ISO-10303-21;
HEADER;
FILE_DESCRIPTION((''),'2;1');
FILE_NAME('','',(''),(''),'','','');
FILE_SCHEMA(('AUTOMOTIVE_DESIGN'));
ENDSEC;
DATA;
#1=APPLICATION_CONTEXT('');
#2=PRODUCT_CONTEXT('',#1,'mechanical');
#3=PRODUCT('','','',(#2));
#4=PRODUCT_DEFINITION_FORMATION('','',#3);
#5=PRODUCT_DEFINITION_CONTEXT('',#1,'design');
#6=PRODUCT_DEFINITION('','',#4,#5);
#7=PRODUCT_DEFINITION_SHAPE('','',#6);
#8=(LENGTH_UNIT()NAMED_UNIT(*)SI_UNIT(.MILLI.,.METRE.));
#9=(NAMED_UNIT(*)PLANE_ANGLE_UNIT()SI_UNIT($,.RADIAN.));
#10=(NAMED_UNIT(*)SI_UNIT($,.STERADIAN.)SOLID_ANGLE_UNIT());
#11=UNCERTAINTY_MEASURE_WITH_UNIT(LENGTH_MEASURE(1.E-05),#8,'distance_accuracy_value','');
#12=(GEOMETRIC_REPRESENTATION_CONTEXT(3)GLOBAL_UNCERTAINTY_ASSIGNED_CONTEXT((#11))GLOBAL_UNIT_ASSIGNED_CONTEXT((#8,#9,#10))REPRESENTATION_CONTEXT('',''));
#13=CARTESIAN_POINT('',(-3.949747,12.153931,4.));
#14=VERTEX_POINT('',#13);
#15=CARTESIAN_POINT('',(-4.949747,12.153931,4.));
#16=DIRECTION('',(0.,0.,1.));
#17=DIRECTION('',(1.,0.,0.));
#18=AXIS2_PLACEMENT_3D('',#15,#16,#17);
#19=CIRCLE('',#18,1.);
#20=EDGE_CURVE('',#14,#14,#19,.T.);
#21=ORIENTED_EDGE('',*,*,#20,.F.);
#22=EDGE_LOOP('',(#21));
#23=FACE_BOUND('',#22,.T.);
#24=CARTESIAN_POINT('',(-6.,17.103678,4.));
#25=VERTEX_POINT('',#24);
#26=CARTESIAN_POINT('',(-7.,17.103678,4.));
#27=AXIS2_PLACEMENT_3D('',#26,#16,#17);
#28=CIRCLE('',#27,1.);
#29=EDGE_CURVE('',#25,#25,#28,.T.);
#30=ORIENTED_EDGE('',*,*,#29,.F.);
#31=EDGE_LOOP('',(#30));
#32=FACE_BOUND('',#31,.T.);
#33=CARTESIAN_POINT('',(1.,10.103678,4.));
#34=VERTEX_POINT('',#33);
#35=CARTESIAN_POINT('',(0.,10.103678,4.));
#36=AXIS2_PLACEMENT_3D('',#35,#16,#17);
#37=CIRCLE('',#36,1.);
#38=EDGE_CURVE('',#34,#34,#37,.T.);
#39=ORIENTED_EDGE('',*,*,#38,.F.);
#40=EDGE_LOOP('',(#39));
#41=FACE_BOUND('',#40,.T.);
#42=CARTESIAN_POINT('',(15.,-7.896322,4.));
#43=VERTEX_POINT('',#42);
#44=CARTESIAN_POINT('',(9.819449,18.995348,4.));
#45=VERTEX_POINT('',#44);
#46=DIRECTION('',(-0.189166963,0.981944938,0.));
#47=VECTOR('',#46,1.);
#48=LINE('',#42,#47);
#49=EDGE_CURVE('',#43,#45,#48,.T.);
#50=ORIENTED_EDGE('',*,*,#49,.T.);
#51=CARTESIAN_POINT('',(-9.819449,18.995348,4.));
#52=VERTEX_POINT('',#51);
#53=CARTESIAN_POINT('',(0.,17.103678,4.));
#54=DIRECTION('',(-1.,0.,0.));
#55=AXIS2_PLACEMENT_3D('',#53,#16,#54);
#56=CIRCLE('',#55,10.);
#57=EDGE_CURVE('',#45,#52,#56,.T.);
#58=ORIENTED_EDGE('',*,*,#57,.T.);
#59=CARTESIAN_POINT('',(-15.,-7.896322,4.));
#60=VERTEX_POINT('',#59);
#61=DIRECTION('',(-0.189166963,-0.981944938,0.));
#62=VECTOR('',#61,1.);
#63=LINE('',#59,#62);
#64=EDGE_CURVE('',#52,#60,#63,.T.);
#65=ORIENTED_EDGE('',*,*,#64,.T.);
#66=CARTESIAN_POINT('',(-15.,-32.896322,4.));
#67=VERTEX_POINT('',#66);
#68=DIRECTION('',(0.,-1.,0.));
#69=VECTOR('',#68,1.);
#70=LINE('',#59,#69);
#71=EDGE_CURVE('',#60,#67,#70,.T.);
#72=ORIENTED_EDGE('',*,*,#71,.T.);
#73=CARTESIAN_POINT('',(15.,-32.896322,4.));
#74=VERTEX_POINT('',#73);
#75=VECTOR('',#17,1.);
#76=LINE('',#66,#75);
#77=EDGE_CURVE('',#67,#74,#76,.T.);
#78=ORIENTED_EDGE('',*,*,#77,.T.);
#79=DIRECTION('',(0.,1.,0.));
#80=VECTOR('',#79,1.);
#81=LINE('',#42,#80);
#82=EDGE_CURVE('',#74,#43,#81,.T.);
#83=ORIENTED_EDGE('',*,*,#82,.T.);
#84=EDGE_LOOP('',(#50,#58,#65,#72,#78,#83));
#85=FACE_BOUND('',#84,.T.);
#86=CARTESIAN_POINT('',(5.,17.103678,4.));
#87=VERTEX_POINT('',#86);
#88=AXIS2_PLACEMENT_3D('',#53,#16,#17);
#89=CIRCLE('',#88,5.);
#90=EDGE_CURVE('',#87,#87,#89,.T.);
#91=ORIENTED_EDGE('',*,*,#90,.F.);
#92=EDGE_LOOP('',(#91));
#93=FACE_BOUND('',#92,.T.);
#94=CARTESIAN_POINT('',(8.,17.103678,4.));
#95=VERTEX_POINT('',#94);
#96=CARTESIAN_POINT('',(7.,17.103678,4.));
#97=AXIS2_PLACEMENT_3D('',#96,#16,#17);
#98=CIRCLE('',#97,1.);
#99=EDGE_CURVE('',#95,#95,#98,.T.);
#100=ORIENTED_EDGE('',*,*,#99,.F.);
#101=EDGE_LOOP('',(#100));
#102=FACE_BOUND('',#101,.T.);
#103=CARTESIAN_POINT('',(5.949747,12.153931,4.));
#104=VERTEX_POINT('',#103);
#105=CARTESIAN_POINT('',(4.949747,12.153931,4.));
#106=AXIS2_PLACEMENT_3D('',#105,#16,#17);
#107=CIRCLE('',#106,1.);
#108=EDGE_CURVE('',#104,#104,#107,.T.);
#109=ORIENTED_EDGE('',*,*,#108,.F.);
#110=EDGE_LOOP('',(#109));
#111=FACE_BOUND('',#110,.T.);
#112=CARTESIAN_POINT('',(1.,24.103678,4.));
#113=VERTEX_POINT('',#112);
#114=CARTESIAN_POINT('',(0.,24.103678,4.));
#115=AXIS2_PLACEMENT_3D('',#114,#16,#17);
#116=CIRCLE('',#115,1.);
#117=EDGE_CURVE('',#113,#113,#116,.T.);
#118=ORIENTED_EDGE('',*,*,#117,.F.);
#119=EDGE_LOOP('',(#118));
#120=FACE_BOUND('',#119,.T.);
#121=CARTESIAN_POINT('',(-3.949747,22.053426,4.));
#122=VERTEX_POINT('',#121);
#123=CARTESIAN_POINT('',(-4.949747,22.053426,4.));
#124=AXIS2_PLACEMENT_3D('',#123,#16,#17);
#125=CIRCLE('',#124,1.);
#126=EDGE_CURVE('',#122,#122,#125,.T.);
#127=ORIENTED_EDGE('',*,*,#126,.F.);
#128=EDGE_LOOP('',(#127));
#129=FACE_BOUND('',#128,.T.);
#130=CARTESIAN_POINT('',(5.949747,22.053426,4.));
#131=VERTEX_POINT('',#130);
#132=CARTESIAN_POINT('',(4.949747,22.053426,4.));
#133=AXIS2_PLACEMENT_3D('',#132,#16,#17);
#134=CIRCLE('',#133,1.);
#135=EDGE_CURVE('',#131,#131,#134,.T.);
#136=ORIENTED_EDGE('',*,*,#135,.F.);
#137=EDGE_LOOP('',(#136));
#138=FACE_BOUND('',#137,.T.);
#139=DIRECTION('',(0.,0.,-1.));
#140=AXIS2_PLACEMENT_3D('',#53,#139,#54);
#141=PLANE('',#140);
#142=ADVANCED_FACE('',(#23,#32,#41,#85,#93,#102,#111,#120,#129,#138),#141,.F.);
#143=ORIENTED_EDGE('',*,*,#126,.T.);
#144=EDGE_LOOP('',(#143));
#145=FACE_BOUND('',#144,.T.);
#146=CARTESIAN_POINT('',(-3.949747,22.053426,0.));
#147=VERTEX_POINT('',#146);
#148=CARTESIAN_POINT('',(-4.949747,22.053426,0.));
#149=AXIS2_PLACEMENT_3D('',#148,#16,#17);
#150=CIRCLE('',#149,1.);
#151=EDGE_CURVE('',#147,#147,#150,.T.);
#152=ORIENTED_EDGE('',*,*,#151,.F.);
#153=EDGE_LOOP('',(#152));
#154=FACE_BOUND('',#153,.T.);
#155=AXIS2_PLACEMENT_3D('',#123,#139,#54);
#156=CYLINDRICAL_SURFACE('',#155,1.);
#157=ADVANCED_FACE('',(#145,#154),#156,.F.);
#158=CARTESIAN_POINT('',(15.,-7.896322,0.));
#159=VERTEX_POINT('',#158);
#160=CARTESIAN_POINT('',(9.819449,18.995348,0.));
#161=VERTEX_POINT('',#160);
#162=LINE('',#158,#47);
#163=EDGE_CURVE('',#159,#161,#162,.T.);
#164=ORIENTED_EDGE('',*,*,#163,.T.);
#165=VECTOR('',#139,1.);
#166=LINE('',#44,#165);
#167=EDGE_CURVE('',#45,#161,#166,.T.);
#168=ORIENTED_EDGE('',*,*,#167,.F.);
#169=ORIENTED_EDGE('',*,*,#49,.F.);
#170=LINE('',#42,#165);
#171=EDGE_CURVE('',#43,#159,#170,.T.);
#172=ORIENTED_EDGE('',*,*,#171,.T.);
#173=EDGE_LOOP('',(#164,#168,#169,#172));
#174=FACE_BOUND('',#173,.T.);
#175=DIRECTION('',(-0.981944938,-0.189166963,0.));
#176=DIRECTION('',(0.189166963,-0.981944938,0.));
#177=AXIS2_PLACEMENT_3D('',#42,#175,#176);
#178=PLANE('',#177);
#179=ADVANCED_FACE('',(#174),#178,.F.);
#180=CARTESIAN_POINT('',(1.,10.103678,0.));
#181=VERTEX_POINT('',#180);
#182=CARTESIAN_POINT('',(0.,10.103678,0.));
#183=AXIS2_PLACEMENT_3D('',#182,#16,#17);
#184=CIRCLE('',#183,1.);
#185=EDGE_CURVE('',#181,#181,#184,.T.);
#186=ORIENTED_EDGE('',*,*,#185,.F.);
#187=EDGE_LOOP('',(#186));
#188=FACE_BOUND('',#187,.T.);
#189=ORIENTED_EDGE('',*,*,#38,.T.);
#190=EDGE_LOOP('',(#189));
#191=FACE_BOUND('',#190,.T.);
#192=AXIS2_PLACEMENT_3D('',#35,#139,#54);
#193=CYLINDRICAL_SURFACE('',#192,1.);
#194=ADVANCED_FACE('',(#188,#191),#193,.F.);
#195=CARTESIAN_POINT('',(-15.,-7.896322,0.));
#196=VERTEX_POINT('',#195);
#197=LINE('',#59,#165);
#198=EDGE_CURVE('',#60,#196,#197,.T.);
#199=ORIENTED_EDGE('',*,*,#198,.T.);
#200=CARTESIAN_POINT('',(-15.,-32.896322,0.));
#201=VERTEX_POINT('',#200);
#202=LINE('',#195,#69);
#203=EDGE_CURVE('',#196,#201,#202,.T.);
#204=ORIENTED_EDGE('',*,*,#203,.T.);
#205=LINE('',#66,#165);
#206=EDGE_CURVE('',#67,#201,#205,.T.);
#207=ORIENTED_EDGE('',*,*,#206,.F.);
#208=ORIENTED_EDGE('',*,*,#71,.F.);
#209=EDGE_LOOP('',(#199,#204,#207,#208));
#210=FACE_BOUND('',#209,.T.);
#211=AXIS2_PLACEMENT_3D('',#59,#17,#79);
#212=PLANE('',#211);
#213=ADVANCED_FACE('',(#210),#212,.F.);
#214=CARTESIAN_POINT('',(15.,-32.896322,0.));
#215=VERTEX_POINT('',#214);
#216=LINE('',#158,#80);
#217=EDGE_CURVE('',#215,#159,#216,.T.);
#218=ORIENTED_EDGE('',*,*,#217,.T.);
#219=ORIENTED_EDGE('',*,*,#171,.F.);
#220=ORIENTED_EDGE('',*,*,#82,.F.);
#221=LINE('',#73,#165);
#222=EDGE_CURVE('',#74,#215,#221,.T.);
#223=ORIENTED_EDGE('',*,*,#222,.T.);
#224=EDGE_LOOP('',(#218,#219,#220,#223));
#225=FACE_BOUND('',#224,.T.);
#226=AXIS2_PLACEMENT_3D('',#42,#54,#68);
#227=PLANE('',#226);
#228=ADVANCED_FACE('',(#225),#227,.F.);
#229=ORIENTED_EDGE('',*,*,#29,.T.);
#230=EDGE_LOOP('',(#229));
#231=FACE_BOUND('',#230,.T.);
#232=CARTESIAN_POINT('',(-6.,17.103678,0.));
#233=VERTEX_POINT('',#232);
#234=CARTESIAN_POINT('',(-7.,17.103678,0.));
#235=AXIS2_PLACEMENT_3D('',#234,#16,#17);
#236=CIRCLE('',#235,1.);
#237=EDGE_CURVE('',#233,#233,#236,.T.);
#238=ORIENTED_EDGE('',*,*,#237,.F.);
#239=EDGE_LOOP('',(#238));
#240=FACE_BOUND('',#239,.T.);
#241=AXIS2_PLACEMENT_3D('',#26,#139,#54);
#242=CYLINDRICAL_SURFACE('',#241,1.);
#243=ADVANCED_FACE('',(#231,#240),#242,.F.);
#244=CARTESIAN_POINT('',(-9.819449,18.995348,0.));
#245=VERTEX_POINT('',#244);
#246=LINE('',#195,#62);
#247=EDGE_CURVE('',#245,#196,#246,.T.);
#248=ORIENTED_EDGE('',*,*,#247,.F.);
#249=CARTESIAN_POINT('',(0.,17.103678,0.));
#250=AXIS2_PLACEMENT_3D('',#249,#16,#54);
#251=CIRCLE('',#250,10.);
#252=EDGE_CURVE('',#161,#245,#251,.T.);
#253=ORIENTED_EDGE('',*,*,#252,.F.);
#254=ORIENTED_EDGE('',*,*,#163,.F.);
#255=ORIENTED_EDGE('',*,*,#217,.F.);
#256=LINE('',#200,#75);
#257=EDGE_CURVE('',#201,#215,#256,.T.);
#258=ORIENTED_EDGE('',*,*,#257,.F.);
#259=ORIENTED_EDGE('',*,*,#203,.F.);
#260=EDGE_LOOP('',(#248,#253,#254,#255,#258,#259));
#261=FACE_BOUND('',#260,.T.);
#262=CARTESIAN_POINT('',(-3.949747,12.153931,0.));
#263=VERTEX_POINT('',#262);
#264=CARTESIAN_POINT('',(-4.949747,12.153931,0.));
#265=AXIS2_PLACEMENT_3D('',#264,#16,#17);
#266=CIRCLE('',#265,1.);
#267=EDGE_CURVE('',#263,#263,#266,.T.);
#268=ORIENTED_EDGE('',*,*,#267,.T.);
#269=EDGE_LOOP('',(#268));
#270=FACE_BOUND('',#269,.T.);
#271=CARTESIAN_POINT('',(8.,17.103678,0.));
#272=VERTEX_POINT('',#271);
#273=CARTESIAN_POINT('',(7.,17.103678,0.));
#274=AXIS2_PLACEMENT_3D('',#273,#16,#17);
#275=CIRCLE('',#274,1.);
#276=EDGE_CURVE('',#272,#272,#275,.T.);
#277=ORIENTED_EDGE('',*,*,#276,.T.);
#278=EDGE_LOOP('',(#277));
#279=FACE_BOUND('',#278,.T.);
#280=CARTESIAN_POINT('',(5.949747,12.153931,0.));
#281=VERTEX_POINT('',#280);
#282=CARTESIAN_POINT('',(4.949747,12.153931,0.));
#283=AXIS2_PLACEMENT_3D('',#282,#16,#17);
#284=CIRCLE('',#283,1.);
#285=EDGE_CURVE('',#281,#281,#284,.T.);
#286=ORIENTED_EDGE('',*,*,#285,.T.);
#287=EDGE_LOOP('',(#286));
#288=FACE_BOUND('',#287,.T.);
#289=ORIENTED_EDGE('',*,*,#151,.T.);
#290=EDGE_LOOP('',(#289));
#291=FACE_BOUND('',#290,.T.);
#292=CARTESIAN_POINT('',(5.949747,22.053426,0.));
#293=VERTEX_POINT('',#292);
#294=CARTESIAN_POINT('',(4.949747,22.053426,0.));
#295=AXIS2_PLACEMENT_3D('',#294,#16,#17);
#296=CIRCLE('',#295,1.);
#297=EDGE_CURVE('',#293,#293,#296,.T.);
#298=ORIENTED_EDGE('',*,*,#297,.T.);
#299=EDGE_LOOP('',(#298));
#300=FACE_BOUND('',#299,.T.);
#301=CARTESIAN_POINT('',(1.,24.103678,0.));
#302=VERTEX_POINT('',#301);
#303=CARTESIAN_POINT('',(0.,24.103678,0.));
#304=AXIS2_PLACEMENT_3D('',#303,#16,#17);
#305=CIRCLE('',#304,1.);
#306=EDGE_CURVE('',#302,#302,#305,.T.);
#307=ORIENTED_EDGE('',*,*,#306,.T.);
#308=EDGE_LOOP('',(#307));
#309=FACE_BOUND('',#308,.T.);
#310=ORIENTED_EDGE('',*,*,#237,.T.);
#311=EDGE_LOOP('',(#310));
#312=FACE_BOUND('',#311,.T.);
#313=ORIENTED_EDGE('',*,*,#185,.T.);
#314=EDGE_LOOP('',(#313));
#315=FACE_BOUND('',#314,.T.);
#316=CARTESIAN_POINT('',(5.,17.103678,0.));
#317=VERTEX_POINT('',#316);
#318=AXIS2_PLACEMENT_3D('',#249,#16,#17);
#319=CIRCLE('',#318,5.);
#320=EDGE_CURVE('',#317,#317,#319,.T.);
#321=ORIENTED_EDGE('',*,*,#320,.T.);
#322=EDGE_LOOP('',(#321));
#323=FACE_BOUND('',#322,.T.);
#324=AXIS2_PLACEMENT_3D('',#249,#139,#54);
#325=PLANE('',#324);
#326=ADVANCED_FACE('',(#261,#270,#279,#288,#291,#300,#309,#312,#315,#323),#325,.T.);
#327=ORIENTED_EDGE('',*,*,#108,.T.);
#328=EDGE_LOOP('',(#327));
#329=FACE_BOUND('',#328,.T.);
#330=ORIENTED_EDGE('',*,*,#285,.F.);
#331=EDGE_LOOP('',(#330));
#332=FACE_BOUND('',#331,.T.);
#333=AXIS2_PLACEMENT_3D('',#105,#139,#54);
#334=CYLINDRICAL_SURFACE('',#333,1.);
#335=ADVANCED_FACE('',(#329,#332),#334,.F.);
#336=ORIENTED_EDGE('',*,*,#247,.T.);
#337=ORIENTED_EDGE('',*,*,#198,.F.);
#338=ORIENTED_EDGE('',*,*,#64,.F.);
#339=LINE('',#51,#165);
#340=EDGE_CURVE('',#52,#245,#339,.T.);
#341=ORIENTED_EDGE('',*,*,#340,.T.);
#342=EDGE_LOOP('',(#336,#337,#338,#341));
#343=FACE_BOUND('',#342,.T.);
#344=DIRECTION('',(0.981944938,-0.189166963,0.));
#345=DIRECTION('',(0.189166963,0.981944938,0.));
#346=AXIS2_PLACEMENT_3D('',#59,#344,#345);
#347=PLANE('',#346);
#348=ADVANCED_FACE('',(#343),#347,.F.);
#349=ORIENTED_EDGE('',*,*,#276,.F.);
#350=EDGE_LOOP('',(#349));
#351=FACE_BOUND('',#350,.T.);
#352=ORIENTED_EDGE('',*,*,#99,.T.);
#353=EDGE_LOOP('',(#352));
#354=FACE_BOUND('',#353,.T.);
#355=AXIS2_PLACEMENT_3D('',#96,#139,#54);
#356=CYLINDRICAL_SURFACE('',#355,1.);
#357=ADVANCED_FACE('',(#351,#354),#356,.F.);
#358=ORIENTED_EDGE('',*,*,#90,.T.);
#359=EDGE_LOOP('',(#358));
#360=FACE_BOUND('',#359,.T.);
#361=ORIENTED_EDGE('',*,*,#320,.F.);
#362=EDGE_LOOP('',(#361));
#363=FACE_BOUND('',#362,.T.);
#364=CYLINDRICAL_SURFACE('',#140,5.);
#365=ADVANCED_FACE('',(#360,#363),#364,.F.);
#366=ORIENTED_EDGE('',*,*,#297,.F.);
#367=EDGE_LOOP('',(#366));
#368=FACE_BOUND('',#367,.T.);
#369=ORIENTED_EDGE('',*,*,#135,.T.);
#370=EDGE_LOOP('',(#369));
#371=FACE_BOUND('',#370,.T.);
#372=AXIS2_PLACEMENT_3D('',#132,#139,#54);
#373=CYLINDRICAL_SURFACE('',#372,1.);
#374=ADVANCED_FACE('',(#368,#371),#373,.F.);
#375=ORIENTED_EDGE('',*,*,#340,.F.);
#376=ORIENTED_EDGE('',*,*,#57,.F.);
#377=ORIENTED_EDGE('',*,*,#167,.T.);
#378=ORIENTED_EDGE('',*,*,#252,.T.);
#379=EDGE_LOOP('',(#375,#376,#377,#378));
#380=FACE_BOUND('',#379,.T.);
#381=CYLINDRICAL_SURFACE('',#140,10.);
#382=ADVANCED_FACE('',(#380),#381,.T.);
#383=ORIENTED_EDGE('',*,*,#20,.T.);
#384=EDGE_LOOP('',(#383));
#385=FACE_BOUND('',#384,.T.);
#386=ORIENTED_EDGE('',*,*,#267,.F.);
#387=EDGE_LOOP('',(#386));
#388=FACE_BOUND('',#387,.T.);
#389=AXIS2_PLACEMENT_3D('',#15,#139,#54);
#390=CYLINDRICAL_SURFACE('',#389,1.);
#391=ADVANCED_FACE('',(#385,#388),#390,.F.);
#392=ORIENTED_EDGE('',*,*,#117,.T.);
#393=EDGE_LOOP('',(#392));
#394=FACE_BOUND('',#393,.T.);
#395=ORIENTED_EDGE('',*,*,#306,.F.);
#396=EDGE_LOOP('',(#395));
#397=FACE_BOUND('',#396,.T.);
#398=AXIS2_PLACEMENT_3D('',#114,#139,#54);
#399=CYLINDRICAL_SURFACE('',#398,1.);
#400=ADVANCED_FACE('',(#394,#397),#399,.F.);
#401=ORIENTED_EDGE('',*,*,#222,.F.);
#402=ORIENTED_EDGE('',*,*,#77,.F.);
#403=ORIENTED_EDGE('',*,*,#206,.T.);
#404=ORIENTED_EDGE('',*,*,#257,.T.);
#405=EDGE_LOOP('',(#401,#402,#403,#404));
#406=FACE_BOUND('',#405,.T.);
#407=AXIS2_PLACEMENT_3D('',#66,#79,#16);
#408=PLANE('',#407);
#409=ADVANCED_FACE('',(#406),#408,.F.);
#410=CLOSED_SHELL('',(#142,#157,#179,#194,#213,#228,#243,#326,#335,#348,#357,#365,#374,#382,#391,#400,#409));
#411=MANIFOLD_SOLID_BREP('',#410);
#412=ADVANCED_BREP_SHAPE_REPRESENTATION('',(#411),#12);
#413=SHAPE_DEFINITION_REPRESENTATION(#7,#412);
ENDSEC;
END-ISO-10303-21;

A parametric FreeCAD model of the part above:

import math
import FreeCAD as App
import Part
import Sketcher

V = App.Vector
Q = App.Units.Quantity

doc = App.newDocument("Part")
body = doc.addObject("PartDesign::Body", "Body")

# Sketch on XY plane
sketch1 = doc.addObject("Sketcher::SketchObject", "Sketch")
body.addObject(sketch1)
sketch1.AttachmentSupport = (doc.XY_Plane, [""])
sketch1.MapMode = "FlatFace"
sketch1.addGeometry([
    Part.LineSegment(V(-9.8, 19, 0), V(-15, -7.9, 0)),  # 0
    Part.LineSegment(V(-15, -7.9, 0), V(-15, -32.9, 0)),  # 1
    Part.LineSegment(V(-15, -32.9, 0), V(15, -32.9, 0)),  # 2
    Part.LineSegment(V(15, -32.9, 0), V(15, -7.9, 0)),  # 3
    Part.LineSegment(V(15, -7.9, 0), V(9.8, 19, 0)),  # 4
    Part.ArcOfCircle(Part.Circle(V(0, 17.1, 0), V(0, 0, 1), 10), math.radians(11), math.radians(169)),  # 5
    Part.Circle(V(4.9, 12.2, 0), V(0, 0, 1), 1),  # 6
    Part.Circle(V(7, 17.1, 0), V(0, 0, 1), 1),  # 7
    Part.Circle(V(0, 10.1, 0), V(0, 0, 1), 1),  # 8
    Part.Circle(V(-4.9, 12.2, 0), V(0, 0, 1), 1),  # 9
    Part.Circle(V(0, 17.1, 0), V(0, 0, 1), 5),  # 10
    Part.Circle(V(-7, 17.1, 0), V(0, 0, 1), 1),  # 11
    Part.Circle(V(4.9, 22.1, 0), V(0, 0, 1), 1),  # 12
    Part.Circle(V(0, 24.1, 0), V(0, 0, 1), 1),  # 13
    Part.Circle(V(-4.9, 22.1, 0), V(0, 0, 1), 1),  # 14
], False)
sketch1.addConstraint([
    Sketcher.Constraint("Coincident", 0, 2, 1, 1),
    Sketcher.Constraint("Coincident", 1, 2, 2, 1),
    Sketcher.Constraint("Coincident", 2, 2, 3, 1),
    Sketcher.Constraint("Coincident", 3, 2, 4, 1),
    Sketcher.Constraint("Tangent", 4, 2, 5, 1),
    Sketcher.Constraint("Tangent", 5, 2, 0, 1),
    Sketcher.Constraint("Vertical", 1),
    Sketcher.Constraint("Horizontal", 2),
    Sketcher.Constraint("Vertical", 3),
    Sketcher.Constraint("Coincident", 10, 3, 5, 3),
    Sketcher.Constraint("Equal", 6, 7),
    Sketcher.Constraint("Equal", 7, 8),
    Sketcher.Constraint("Equal", 8, 9),
    Sketcher.Constraint("Equal", 9, 11),
    Sketcher.Constraint("Equal", 11, 12),
    Sketcher.Constraint("Equal", 12, 13),
    Sketcher.Constraint("Equal", 13, 14),
    Sketcher.Constraint("Symmetric", 6, 3, 9, 3, -2),
    Sketcher.Constraint("Symmetric", 7, 3, 11, 3, -2),
    Sketcher.Constraint("Symmetric", 12, 3, 14, 3, -2),
    Sketcher.Constraint("Symmetric", 0, 2, 3, 2, -2),
    Sketcher.Constraint("PointOnObject", 5, 3, -2),
    Sketcher.Constraint("PointOnObject", 8, 3, -2),
    Sketcher.Constraint("PointOnObject", 13, 3, -2),
    Sketcher.Constraint("Horizontal", 5, 3, 7, 3),
    Sketcher.Constraint("Vertical", 6, 3, 12, 3),
    Sketcher.Constraint("Diameter", 6, Q("2 mm")),
    Sketcher.Constraint("Diameter", 10, Q("10 mm")),
    Sketcher.Constraint("Radius", 5, Q("10 mm")),
    Sketcher.Constraint("DistanceX", 2, 1, 2, 2, Q("30 mm")),
    Sketcher.Constraint("DistanceY", 1, 2, 1, 1, Q("25 mm")),
    Sketcher.Constraint("DistanceX", -1, 1, 7, 3, Q("7 mm")),
    Sketcher.Constraint("DistanceY", 8, 3, 5, 3, Q("7 mm")),
    Sketcher.Constraint("DistanceY", 5, 3, 13, 3, Q("7 mm")),
    Sketcher.Constraint("DistanceY", 0, 2, 8, 3, Q("18 mm")),
    Sketcher.Constraint("DistanceX", 12, 3, 4, 2, Q("4.869702 mm")),
    Sketcher.Constraint("DistanceY", -1, 1, 5, 3, Q("17.103678 mm")),
    Sketcher.Constraint("DistanceY", -1, 1, 6, 3, Q("12.153931 mm")),
    Sketcher.Constraint("DistanceY", -1, 1, 12, 3, Q("22.053426 mm")),
])
pad1 = doc.addObject("PartDesign::Pad", "Pad")
body.addObject(pad1)
pad1.Profile = sketch1
pad1.Length = 4

doc.recompute()
